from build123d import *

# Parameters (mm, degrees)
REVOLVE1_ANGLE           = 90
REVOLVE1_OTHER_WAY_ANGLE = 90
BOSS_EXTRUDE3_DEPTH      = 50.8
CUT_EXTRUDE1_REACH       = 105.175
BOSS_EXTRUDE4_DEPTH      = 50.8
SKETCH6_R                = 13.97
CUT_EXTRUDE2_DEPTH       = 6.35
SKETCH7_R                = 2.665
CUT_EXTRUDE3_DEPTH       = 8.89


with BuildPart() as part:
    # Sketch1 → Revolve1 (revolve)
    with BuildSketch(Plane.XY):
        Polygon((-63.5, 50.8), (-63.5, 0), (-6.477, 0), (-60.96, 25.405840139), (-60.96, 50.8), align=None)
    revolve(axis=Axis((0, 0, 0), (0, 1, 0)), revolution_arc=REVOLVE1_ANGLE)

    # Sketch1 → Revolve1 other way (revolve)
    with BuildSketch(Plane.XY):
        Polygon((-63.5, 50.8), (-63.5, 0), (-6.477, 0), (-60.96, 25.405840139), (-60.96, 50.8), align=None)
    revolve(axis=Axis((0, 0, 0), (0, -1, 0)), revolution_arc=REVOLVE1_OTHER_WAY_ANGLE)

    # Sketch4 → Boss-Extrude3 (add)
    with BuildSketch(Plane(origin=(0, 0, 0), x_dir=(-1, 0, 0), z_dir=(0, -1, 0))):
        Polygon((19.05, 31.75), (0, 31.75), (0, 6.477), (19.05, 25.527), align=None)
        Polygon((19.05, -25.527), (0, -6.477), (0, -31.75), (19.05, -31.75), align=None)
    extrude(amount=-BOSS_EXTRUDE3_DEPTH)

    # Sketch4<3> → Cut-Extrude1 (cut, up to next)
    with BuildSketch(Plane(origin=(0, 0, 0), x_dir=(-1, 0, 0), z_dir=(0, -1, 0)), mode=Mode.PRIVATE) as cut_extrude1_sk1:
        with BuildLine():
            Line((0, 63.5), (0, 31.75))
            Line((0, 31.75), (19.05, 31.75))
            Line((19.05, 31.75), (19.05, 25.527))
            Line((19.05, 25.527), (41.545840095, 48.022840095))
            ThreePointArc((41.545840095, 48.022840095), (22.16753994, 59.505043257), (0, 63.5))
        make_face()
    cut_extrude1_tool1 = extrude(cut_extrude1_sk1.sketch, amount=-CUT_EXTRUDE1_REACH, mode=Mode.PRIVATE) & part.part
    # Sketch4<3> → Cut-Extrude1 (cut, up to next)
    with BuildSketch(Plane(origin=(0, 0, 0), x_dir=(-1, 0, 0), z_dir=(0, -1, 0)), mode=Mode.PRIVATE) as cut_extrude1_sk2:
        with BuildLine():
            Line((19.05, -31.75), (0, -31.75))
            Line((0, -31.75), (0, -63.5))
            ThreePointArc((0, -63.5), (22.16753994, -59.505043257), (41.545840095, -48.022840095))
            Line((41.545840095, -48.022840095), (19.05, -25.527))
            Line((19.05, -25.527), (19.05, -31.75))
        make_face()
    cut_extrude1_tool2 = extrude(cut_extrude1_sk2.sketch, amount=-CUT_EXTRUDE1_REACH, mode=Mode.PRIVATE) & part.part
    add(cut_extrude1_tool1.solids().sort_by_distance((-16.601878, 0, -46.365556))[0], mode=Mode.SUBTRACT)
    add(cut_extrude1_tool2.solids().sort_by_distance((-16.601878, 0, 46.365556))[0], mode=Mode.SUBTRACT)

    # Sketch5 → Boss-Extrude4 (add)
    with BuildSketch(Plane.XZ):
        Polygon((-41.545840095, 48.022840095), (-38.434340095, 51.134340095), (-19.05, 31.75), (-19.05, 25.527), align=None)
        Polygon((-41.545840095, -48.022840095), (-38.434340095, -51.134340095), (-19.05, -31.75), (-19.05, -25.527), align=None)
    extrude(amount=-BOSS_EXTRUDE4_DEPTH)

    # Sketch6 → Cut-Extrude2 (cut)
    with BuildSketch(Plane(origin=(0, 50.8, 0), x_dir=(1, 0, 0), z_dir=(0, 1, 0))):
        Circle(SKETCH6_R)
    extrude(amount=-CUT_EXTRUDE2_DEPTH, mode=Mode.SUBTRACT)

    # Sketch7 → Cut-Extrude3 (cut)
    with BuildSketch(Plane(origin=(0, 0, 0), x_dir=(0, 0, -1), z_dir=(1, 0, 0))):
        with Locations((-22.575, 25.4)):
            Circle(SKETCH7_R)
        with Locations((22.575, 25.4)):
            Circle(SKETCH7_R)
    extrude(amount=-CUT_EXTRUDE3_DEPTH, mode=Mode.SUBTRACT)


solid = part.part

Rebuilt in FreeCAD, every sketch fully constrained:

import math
import FreeCAD as App
import Part
import Sketcher
from FreeCAD import Vector
Q = App.Units.Quantity

doc = App.newDocument("Part")
params = doc.addObject("Spreadsheet::Sheet", "Params")
for row, (alias, value) in enumerate([
    ("sketch1_height", "2 in"),
    ("sketch1_width", "0.1 in"),
    ("sketch1_width2", "2.245 in"),
    ("revolution_angle", "90 deg"),
    ("sketch2_height", "2 in"),
    ("sketch2_width", "0.1 in"),
    ("sketch2_width2", "2.245 in"),
    ("revolution2_angle", "90 deg"),
    ("sketch3_width", "0.75 in"),
    ("sketch3_height", "0.995 in"),
    ("pad1_length", "2 in"),
    ("sketch4_radius", "2.5 in"),
    ("sketch4_width", "0.75 in"),
    ("sketch4_height", "1.25 in"),
    ("sketch4_height2", "0.245 in"),
    ("sketch5_radius", "2.5 in"),
    ("sketch5_width", "0.75 in"),
    ("sketch5_height", "1.25 in"),
    ("sketch5_height2", "0.245 in"),
    ("sketch6_height", "0.245 in"),
    ("pad2_length", "2 in"),
    ("sketch7_diameter", "1.1 in"),
    ("pocket3_length", "0.25 in"),
    ("pocket4_length", "0.35 in"),
], start=1):
    params.set(f"A{row}", alias)
    params.set(f"B{row}", "=" + value)
    params.setAlias(f"B{row}", alias)

body = doc.addObject("PartDesign::Body", "Body")

# Sketch on XY plane
sketch1 = body.newObject("Sketcher::SketchObject", "Sketch")
sketch1.AttachmentSupport = (doc.getObject("XY_Plane"), [""])
sketch1.MapMode = "FlatFace"
sketch1.addGeometry([
    Part.LineSegment(Vector(-63.5, 50.8, 0), Vector(-63.5, 0, 0)),  # 0
    Part.LineSegment(Vector(-63.5, 0, 0), Vector(-6.477, 0, 0)),  # 1
    Part.LineSegment(Vector(-6.477, 0, 0), Vector(-60.96, 25.40584, 0)),  # 2
    Part.LineSegment(Vector(-60.96, 25.40584, 0), Vector(-60.96, 50.8, 0)),  # 3
    Part.LineSegment(Vector(-60.96, 50.8, 0), Vector(-63.5, 50.8, 0)),  # 4
], False)
sketch1.addConstraint([
    Sketcher.Constraint("Coincident", 0, 2, 1, 1),
    Sketcher.Constraint("Coincident", 1, 2, 2, 1),
    Sketcher.Constraint("Coincident", 2, 2, 3, 1),
    Sketcher.Constraint("Coincident", 3, 2, 4, 1),
    Sketcher.Constraint("Coincident", 4, 2, 0, 1),
    Sketcher.Constraint("Vertical", 0),
    Sketcher.Constraint("Horizontal", 1),
    Sketcher.Constraint("Vertical", 3),
    Sketcher.Constraint("Horizontal", 4),
    Sketcher.Constraint("PointOnObject", 0, 2, -1),
    Sketcher.Constraint("DistanceY", 0, 2, 0, 1, Q("2 in")),
    Sketcher.Constraint("DistanceX", 4, 2, 4, 1, Q("0.1 in")),
    Sketcher.Constraint("Angle", 2, Q("155 deg")),
    Sketcher.Constraint("DistanceX", 0, 2, -1, 1, Q("2.5 in")),
    Sketcher.Constraint("DistanceX", 1, 1, 1, 2, Q("2.245 in")),
])
sketch1.setExpression("Constraints[10]", "Params.sketch1_height")
sketch1.setExpression("Constraints[11]", "Params.sketch1_width")
sketch1.setExpression("Constraints[14]", "Params.sketch1_width2")
revolution = body.newObject("PartDesign::Revolution", "Revolution")
revolution.Profile = sketch1
revolution.ReferenceAxis = (sketch1, ["V_Axis"])
revolution.setExpression("Angle", "Params.revolution_angle")

# Sketch on XY plane
sketch2 = body.newObject("Sketcher::SketchObject", "Sketch001")
sketch2.AttachmentSupport = (doc.getObject("XY_Plane"), [""])
sketch2.MapMode = "FlatFace"
sketch2.addGeometry([
    Part.LineSegment(Vector(-63.5, 50.8, 0), Vector(-63.5, 0, 0)),  # 0
    Part.LineSegment(Vector(-63.5, 0, 0), Vector(-6.477, 0, 0)),  # 1
    Part.LineSegment(Vector(-6.477, 0, 0), Vector(-60.96, 25.40584, 0)),  # 2
    Part.LineSegment(Vector(-60.96, 25.40584, 0), Vector(-60.96, 50.8, 0)),  # 3
    Part.LineSegment(Vector(-60.96, 50.8, 0), Vector(-63.5, 50.8, 0)),  # 4
], False)
sketch2.addConstraint([
    Sketcher.Constraint("Coincident", 0, 2, 1, 1),
    Sketcher.Constraint("Coincident", 1, 2, 2, 1),
    Sketcher.Constraint("Coincident", 2, 2, 3, 1),
    Sketcher.Constraint("Coincident", 3, 2, 4, 1),
    Sketcher.Constraint("Coincident", 4, 2, 0, 1),
    Sketcher.Constraint("Vertical", 0),
    Sketcher.Constraint("Horizontal", 1),
    Sketcher.Constraint("Vertical", 3),
    Sketcher.Constraint("Horizontal", 4),
    Sketcher.Constraint("PointOnObject", 0, 2, -1),
    Sketcher.Constraint("DistanceY", 0, 2, 0, 1, Q("2 in")),
    Sketcher.Constraint("DistanceX", 4, 2, 4, 1, Q("0.1 in")),
    Sketcher.Constraint("Angle", 2, Q("155 deg")),
    Sketcher.Constraint("DistanceX", 0, 2, -1, 1, Q("2.5 in")),
    Sketcher.Constraint("DistanceX", 1, 1, 1, 2, Q("2.245 in")),
])
sketch2.setExpression("Constraints[10]", "Params.sketch2_height")
sketch2.setExpression("Constraints[11]", "Params.sketch2_width")
sketch2.setExpression("Constraints[14]", "Params.sketch2_width2")
revolution2 = body.newObject("PartDesign::Revolution", "Revolution001")
revolution2.Profile = sketch2
revolution2.ReferenceAxis = (sketch2, ["V_Axis"])
revolution2.setExpression("Angle", "Params.revolution2_angle")
revolution2.Reversed = True

# Sketch on XZ plane
sketch3 = body.newObject("Sketcher::SketchObject", "Sketch002")
sketch3.AttachmentSupport = (doc.getObject("XZ_Plane"), [""])
sketch3.MapMode = "FlatFace"
sketch3.addGeometry([
    Part.LineSegment(Vector(-19.05, -31.75, 0), Vector(0, -31.75, 0)),  # 0
    Part.LineSegment(Vector(0, -31.75, 0), Vector(0, -6.477, 0)),  # 1
    Part.LineSegment(Vector(0, -6.477, 0), Vector(-19.05, -25.527, 0)),  # 2
    Part.LineSegment(Vector(-19.05, -25.527, 0), Vector(-19.05, -31.75, 0)),  # 3
    Part.LineSegment(Vector(-19.05, 25.527, 0), Vector(0, 6.477, 0)),  # 4
    Part.LineSegment(Vector(0, 6.477, 0), Vector(0, 31.75, 0)),  # 5
    Part.LineSegment(Vector(0, 31.75, 0), Vector(-19.05, 31.75, 0)),  # 6
    Part.LineSegment(Vector(-19.05, 31.75, 0), Vector(-19.05, 25.527, 0)),  # 7
], False)
sketch3.addConstraint([
    Sketcher.Constraint("Coincident", 0, 2, 1, 1),
    Sketcher.Constraint("Coincident", 1, 2, 2, 1),
    Sketcher.Constraint("Coincident", 2, 2, 3, 1),
    Sketcher.Constraint("Coincident", 3, 2, 0, 1),
    Sketcher.Constraint("Coincident", 4, 2, 5, 1),
    Sketcher.Constraint("Coincident", 5, 2, 6, 1),
    Sketcher.Constraint("Coincident", 6, 2, 7, 1),
    Sketcher.Constraint("Coincident", 7, 2, 4, 1),
    Sketcher.Constraint("Horizontal", 0),
    Sketcher.Constraint("Vertical", 1),
    Sketcher.Constraint("Vertical", 3),
    Sketcher.Constraint("Vertical", 5),
    Sketcher.Constraint("Horizontal", 6),
    Sketcher.Constraint("Vertical", 7),
    Sketcher.Constraint("Symmetric", 1, 2, 4, 2, -1, 1),
    Sketcher.Constraint("Symmetric", 0, 2, 5, 2, -1),
    Sketcher.Constraint("Symmetric", 2, 2, 7, 2, -1),
    Sketcher.Constraint("Perpendicular", 2, 4),
    Sketcher.Constraint("DistanceX", 0, 1, 0, 2, Q("0.75 in")),
    Sketcher.Constraint("DistanceY", 0, 2, 5, 2, Q("2.5 in")),
    Sketcher.Constraint("DistanceY", 1, 1, 1, 2, Q("0.995 in")),
])
sketch3.setExpression("Constraints[18]", "Params.sketch3_width")
sketch3.setExpression("Constraints[20]", "Params.sketch3_height")
pad1 = body.newObject("PartDesign::Pad", "Pad")
pad1.Profile = sketch3
pad1.setExpression("Length", "Params.pad1_length")
pad1.Reversed = True

# Sketch on XZ plane
sketch4 = body.newObject("Sketcher::SketchObject", "Sketch003")
sketch4.AttachmentSupport = (doc.getObject("XZ_Plane"), [""])
sketch4.MapMode = "FlatFace"
sketch4.addGeometry([
    Part.LineSegment(Vector(0, -63.5, 0), Vector(0, -31.75, 0)),  # 0
    Part.LineSegment(Vector(0, -31.75, 0), Vector(-19.05, -31.75, 0)),  # 1
    Part.LineSegment(Vector(-19.05, -31.75, 0), Vector(-19.05, -25.527, 0)),  # 2
    Part.LineSegment(Vector(-19.05, -25.527, 0), Vector(-41.54584, -48.02284, 0)),  # 3
    Part.ArcOfCircle(Part.Circle(Vector(0, 0, 0), Vector(0, 0, 1), 63.5), math.radians(-130.863957), math.radians(-90)),  # 4
], False)
sketch4.addConstraint([
    Sketcher.Constraint("Coincident", 0, 2, 1, 1),
    Sketcher.Constraint("Coincident", 1, 2, 2, 1),
    Sketcher.Constraint("Coincident", 2, 2, 3, 1),
    Sketcher.Constraint("Coincident", 3, 2, 4, 1),
    Sketcher.Constraint("Coincident", 4, 2, 0, 1),
    Sketcher.Constraint("Vertical", 0),
    Sketcher.Constraint("Horizontal", 1),
    Sketcher.Constraint("Vertical", 2),
    Sketcher.Constraint("Coincident", 4, 3, -1, 1),
    Sketcher.Constraint("PointOnObject", 0, 2, -2),
    Sketcher.Constraint("Radius", 4, Q("2.5 in")),
    Sketcher.Constraint("Angle", 3, Q("-135 deg")),
    Sketcher.Constraint("DistanceX", 1, 2, 1, 1, Q("0.75 in")),
    Sketcher.Constraint("DistanceY", 0, 1, 0, 2, Q("1.25 in")),
    Sketcher.Constraint("DistanceY", 2, 1, 2, 2, Q("0.245 in")),
])
sketch4.setExpression("Constraints[10]", "Params.sketch4_radius")
sketch4.setExpression("Constraints[12]", "Params.sketch4_width")
sketch4.setExpression("Constraints[13]", "Params.sketch4_height")
sketch4.setExpression("Constraints[14]", "Params.sketch4_height2")
pocket1 = body.newObject("PartDesign::Pocket", "Pocket")
pocket1.Profile = sketch4
pocket1.Type = "UpToFirst"

# Sketch on XZ plane
sketch5 = body.newObject("Sketcher::SketchObject", "Sketch004")
sketch5.AttachmentSupport = (doc.getObject("XZ_Plane"), [""])
sketch5.MapMode = "FlatFace"
sketch5.addGeometry([
    Part.LineSegment(Vector(-19.05, 31.75, 0), Vector(0, 31.75, 0)),  # 0
    Part.LineSegment(Vector(0, 31.75, 0), Vector(0, 63.5, 0)),  # 1
    Part.ArcOfCircle(Part.Circle(Vector(0, 0, 0), Vector(0, 0, 1), 63.5), math.radians(90), math.radians(130.863957)),  # 2
    Part.LineSegment(Vector(-41.54584, 48.02284, 0), Vector(-19.05, 25.527, 0)),  # 3
    Part.LineSegment(Vector(-19.05, 25.527, 0), Vector(-19.05, 31.75, 0)),  # 4
], False)
sketch5.addConstraint([
    Sketcher.Constraint("Coincident", 0, 2, 1, 1),
    Sketcher.Constraint("Coincident", 1, 2, 2, 1),
    Sketcher.Constraint("Coincident", 2, 2, 3, 1),
    Sketcher.Constraint("Coincident", 3, 2, 4, 1),
    Sketcher.Constraint("Coincident", 4, 2, 0, 1),
    Sketcher.Constraint("Horizontal", 0),
    Sketcher.Constraint("Vertical", 1),
    Sketcher.Constraint("Vertical", 4),
    Sketcher.Constraint("Coincident", 2, 3, -1, 1),
    Sketcher.Constraint("PointOnObject", 0, 2, -2),
    Sketcher.Constraint("Radius", 2, Q("2.5 in")),
    Sketcher.Constraint("Angle", 3, Q("-45 deg")),
    Sketcher.Constraint("DistanceX", 0, 1, 0, 2, Q("0.75 in")),
    Sketcher.Constraint("DistanceY", 1, 1, 1, 2, Q("1.25 in")),
    Sketcher.Constraint("DistanceY", 4, 1, 4, 2, Q("0.245 in")),
])
sketch5.setExpression("Constraints[10]", "Params.sketch5_radius")
sketch5.setExpression("Constraints[12]", "Params.sketch5_width")
sketch5.setExpression("Constraints[13]", "Params.sketch5_height")
sketch5.setExpression("Constraints[14]", "Params.sketch5_height2")
pocket2 = body.newObject("PartDesign::Pocket", "Pocket001")
pocket2.Profile = sketch5
pocket2.Type = "UpToFirst"

# Sketch on XZ plane
sketch6 = body.newObject("Sketcher::SketchObject", "Sketch005")
sketch6.AttachmentSupport = (doc.getObject("XZ_Plane"), [""])
sketch6.MapMode = "FlatFace"
sketch6.addGeometry([
    Part.LineSegment(Vector(-38.43434, 51.13434, 0), Vector(-41.54584, 48.02284, 0)),  # 0
    Part.LineSegment(Vector(-41.54584, 48.02284, 0), Vector(-19.05, 25.527, 0)),  # 1
    Part.LineSegment(Vector(-19.05, 25.527, 0), Vector(-19.05, 31.75, 0)),  # 2
    Part.LineSegment(Vector(-19.05, 31.75, 0), Vector(-38.43434, 51.13434, 0)),  # 3
    Part.LineSegment(Vector(-41.54584, -48.02284, 0), Vector(-38.43434, -51.13434, 0)),  # 4
    Part.LineSegment(Vector(-38.43434, -51.13434, 0), Vector(-19.05, -31.75, 0)),  # 5
    Part.LineSegment(Vector(-19.05, -31.75, 0), Vector(-19.05, -25.527, 0)),  # 6
    Part.LineSegment(Vector(-19.05, -25.527, 0), Vector(-41.54584, -48.02284, 0)),  # 7
], False)
sketch6.addConstraint([
    Sketcher.Constraint("Coincident", 0, 2, 1, 1),
    Sketcher.Constraint("Coincident", 1, 2, 2, 1),
    Sketcher.Constraint("Coincident", 2, 2, 3, 1),
    Sketcher.Constraint("Coincident", 3, 2, 0, 1),
    Sketcher.Constraint("Coincident", 4, 2, 5, 1),
    Sketcher.Constraint("Coincident", 5, 2, 6, 1),
    Sketcher.Constraint("Coincident", 6, 2, 7, 1),
    Sketcher.Constraint("Coincident", 7, 2, 4, 1),
    Sketcher.Constraint("Vertical", 2),
    Sketcher.Constraint("Vertical", 6),
    Sketcher.Constraint("Symmetric", 3, 2, 4, 2, -1),
    Sketcher.Constraint("Symmetric", 2, 2, 5, 2, -1),
    Sketcher.Constraint("Symmetric", 0, 2, 7, 2, -1),
    Sketcher.Constraint("Perpendicular", 0, 1),
    Sketcher.Constraint("Parallel", 1, 3),
    Sketcher.Constraint("Parallel", 3, 4),
    Sketcher.Constraint("Parallel", 5, 7),
    Sketcher.Constraint("DistanceY", 5, 2, 2, 2, Q("2.5 in")),
    Sketcher.Constraint("DistanceY", 2, 1, 2, 2, Q("0.245 in")),
    Sketcher.Constraint("DistanceX", 1, 2, -1, 1, Q("0.75 in")),
    Sketcher.Constraint("DistanceX", 0, 2, -1, 1, 41.54584),
])
sketch6.setExpression("Constraints[18]", "Params.sketch6_height")
pad2 = body.newObject("PartDesign::Pad", "Pad001")
pad2.Profile = sketch6
pad2.setExpression("Length", "Params.pad2_length")
pad2.Reversed = True

# Sketch on XZ plane
sketch7 = body.newObject("Sketcher::SketchObject", "Sketch006")
sketch7.AttachmentSupport = (doc.getObject("XZ_Plane"), [""])
sketch7.MapMode = "FlatFace"
sketch7.AttachmentOffset = App.Placement(Vector(0, 0, -2 * 25.4), App.Rotation())
sketch7.addGeometry(Part.Circle(Vector(0, 0, 0), Vector(0, 0, 1), 13.97), False)
sketch7.addConstraint([
    Sketcher.Constraint("Coincident", 0, 3, -1, 1),
    Sketcher.Constraint("Diameter", 0, Q("1.1 in")),
])
sketch7.setExpression("Constraints[1]", "Params.sketch7_diameter")
pocket3 = body.newObject("PartDesign::Pocket", "Pocket002")
pocket3.Profile = sketch7
pocket3.setExpression("Length", "Params.pocket3_length")
pocket3.Reversed = True

# Sketch on YZ plane
sketch8 = body.newObject("Sketcher::SketchObject", "Sketch007")
sketch8.AttachmentSupport = (doc.getObject("YZ_Plane"), [""])
sketch8.MapMode = "FlatFace"
sketch8.addGeometry([
    Part.Circle(Vector(25.4, 22.575, 0), Vector(0, 0, 1), 2.665),
    Part.Circle(Vector(25.4, -22.575, 0), Vector(0, 0, 1), 2.665),
], False)
sketch8.addConstraint([
    Sketcher.Constraint("Equal", 0, 1),
    Sketcher.Constraint("Symmetric", 0, 3, 1, 3, -1),
    Sketcher.Constraint("DistanceX", -1, 1, 0, 3, Q("1 in")),
    Sketcher.Constraint("Diameter", 0, 5.33),
    Sketcher.Constraint("DistanceY", -1, 1, 0, 3, 22.575),
])
pocket4 = body.newObject("PartDesign::Pocket", "Pocket003")
pocket4.Profile = sketch8
pocket4.setExpression("Length", "Params.pocket4_length")

doc.recompute()
